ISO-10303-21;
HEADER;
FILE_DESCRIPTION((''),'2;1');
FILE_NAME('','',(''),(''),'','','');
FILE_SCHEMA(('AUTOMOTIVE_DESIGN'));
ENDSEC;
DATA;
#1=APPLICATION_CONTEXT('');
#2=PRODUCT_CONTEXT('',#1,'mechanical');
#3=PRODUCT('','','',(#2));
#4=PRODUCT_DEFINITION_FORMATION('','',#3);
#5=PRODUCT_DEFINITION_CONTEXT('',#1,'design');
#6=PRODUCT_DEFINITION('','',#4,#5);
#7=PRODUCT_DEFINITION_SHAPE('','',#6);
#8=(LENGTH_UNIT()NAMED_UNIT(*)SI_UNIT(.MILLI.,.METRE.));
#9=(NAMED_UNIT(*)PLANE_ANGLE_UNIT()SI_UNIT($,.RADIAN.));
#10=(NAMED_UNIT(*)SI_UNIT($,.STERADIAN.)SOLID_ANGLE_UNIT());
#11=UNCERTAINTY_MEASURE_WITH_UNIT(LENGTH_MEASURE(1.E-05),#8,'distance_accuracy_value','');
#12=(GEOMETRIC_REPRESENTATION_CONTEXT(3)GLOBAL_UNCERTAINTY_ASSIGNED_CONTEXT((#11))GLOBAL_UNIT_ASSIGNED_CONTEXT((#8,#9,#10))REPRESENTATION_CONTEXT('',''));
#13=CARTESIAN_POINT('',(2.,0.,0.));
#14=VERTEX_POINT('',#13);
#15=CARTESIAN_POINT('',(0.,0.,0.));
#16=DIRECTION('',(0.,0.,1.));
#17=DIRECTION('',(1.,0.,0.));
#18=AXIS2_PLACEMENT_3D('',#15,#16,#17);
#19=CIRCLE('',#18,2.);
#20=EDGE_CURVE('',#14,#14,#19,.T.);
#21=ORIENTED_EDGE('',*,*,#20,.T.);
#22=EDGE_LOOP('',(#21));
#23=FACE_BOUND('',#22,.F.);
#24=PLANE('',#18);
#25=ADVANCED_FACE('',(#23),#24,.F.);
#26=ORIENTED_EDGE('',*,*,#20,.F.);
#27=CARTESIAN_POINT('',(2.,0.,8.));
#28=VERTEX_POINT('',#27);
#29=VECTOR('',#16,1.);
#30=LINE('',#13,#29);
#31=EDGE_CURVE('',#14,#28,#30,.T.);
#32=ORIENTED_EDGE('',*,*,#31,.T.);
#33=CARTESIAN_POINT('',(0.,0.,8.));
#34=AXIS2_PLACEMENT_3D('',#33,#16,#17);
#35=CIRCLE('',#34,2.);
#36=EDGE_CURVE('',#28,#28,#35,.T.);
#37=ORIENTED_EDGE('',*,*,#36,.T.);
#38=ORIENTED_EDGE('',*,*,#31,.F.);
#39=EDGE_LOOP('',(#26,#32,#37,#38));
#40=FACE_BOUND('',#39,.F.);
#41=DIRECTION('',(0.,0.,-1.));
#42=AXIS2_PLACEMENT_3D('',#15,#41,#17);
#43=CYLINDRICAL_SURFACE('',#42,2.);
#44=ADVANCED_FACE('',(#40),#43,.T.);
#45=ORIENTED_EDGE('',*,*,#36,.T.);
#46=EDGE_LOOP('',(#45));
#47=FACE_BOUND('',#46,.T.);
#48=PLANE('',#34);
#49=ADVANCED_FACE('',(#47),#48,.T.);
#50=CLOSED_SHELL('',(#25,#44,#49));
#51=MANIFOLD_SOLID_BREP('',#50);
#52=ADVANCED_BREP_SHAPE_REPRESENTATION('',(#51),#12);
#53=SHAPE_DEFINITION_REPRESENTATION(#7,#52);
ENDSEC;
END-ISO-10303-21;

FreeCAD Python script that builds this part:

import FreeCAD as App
import Part
import Sketcher
from FreeCAD import Vector

doc = App.newDocument("Part")
params = doc.addObject("Spreadsheet::Sheet", "Params")
for row, (alias, value) in enumerate([
    ("sketch1_diameter", "4 mm"),
    ("pad1_length", "8 mm"),
], start=1):
    params.set(f"A{row}", alias)
    params.set(f"B{row}", "=" + value)
    params.setAlias(f"B{row}", alias)

body = doc.addObject("PartDesign::Body", "Body")

# Sketch on XY plane
sketch1 = body.newObject("Sketcher::SketchObject", "Sketch")
sketch1.AttachmentSupport = (doc.getObject("XY_Plane"), [""])
sketch1.MapMode = "FlatFace"
sketch1.addGeometry(Part.Circle(Vector(0, 0, 0), Vector(0, 0, 1), 2), False)
sketch1.addConstraint([
    Sketcher.Constraint("Coincident", 0, 3, -1, 1),
    Sketcher.Constraint("Diameter", 0, 4.0),
])
sketch1.setExpression("Constraints[1]", "Params.sketch1_diameter")
pad1 = body.newObject("PartDesign::Pad", "Pad")
pad1.Profile = sketch1
pad1.setExpression("Length", "Params.pad1_length")

doc.recompute()
